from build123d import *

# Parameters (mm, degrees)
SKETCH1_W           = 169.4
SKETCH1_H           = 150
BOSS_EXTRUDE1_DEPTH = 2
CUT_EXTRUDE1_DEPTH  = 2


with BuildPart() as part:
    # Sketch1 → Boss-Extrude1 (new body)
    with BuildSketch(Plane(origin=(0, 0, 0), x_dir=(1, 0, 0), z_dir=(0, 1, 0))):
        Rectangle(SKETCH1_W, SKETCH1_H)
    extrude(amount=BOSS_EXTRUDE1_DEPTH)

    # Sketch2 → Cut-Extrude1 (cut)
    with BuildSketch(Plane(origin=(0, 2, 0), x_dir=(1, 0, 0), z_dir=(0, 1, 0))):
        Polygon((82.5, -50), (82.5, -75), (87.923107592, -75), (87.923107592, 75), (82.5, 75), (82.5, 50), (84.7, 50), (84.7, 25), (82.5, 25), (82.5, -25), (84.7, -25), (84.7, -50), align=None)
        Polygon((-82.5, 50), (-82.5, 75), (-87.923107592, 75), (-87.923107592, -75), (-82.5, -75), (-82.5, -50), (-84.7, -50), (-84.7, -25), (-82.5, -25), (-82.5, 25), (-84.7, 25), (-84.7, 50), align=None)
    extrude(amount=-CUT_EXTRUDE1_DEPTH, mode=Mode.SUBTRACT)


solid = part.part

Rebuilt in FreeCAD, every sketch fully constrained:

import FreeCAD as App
import Part
import Sketcher
from FreeCAD import Vector

doc = App.newDocument("Part")
body = doc.addObject("PartDesign::Body", "Body")

sketch1 = doc.addObject("Sketcher::SketchObject", "Sketch")
body.addObject(sketch1)
sketch1.AttachmentSupport = (doc.XZ_Plane, [""])
sketch1.MapMode = "FlatFace"
sketch1.addGeometry([
    Part.LineSegment(Vector(-84.7, -75, 0), Vector(-84.7, 75, 0)),
    Part.LineSegment(Vector(-84.7, 75, 0), Vector(84.7, 75, 0)),
    Part.LineSegment(Vector(84.7, 75, 0), Vector(84.7, -75, 0)),
    Part.LineSegment(Vector(84.7, -75, 0), Vector(-84.7, -75, 0)),
], False)
sketch1.addConstraint([
    Sketcher.Constraint("Coincident", 0, 2, 1, 1),
    Sketcher.Constraint("Coincident", 1, 2, 2, 1),
    Sketcher.Constraint("Coincident", 2, 2, 3, 1),
    Sketcher.Constraint("Coincident", 3, 2, 0, 1),
    Sketcher.Constraint("Vertical", 0),
    Sketcher.Constraint("Horizontal", 1),
    Sketcher.Constraint("Vertical", 2),
    Sketcher.Constraint("Horizontal", 3),
    Sketcher.Constraint("Symmetric", 0, 2, 2, 2, -1, 1),
    Sketcher.Constraint("DistanceY", 0, 1, 0, 2, 150.0),
    Sketcher.Constraint("DistanceX", 1, 1, 1, 2, 169.4),
])
pad1 = doc.addObject("PartDesign::Pad", "Pad")
body.addObject(pad1)
pad1.Profile = sketch1
pad1.Length = 2
pad1.Reversed = True

sketch2 = doc.addObject("Sketcher::SketchObject", "Sketch001")
body.addObject(sketch2)
sketch2.AttachmentSupport = (doc.XZ_Plane, [""])
sketch2.MapMode = "FlatFace"
sketch2.AttachmentOffset = App.Placement(Vector(0, 0, -2), App.Rotation())
sketch2.addGeometry([
    Part.LineSegment(Vector(82.5, 50, 0), Vector(82.5, 75, 0)),
    Part.LineSegment(Vector(82.5, 75, 0), Vector(87.923108, 75, 0)),
    Part.LineSegment(Vector(87.923108, 75, 0), Vector(87.923108, -75, 0)),
    Part.LineSegment(Vector(87.923108, -75, 0), Vector(82.5, -75, 0)),
    Part.LineSegment(Vector(82.5, -75, 0), Vector(82.5, -50, 0)),
    Part.LineSegment(Vector(82.5, -50, 0), Vector(84.7, -50, 0)),
    Part.LineSegment(Vector(84.7, -50, 0), Vector(84.7, -25, 0)),
    Part.LineSegment(Vector(84.7, -25, 0), Vector(82.5, -25, 0)),
    Part.LineSegment(Vector(82.5, -25, 0), Vector(82.5, 25, 0)),
    Part.LineSegment(Vector(82.5, 25, 0), Vector(84.7, 25, 0)),
    Part.LineSegment(Vector(84.7, 25, 0), Vector(84.7, 50, 0)),
    Part.LineSegment(Vector(84.7, 50, 0), Vector(82.5, 50, 0)),
    Part.LineSegment(Vector(-82.5, -50, 0), Vector(-82.5, -75, 0)),
    Part.LineSegment(Vector(-82.5, -75, 0), Vector(-87.923108, -75, 0)),
    Part.LineSegment(Vector(-87.923108, -75, 0), Vector(-87.923108, 75, 0)),
    Part.LineSegment(Vector(-87.923108, 75, 0), Vector(-82.5, 75, 0)),
    Part.LineSegment(Vector(-82.5, 75, 0), Vector(-82.5, 50, 0)),
    Part.LineSegment(Vector(-82.5, 50, 0), Vector(-84.7, 50, 0)),
    Part.LineSegment(Vector(-84.7, 50, 0), Vector(-84.7, 25, 0)),
    Part.LineSegment(Vector(-84.7, 25, 0), Vector(-82.5, 25, 0)),
    Part.LineSegment(Vector(-82.5, 25, 0), Vector(-82.5, -25, 0)),
    Part.LineSegment(Vector(-82.5, -25, 0), Vector(-84.7, -25, 0)),
    Part.LineSegment(Vector(-84.7, -25, 0), Vector(-84.7, -50, 0)),
    Part.LineSegment(Vector(-84.7, -50, 0), Vector(-82.5, -50, 0)),
], False)
sketch2.addConstraint([
    Sketcher.Constraint("Coincident", 0, 2, 1, 1),
    Sketcher.Constraint("Coincident", 1, 2, 2, 1),
    Sketcher.Constraint("Coincident", 2, 2, 3, 1),
    Sketcher.Constraint("Coincident", 3, 2, 4, 1),
    Sketcher.Constraint("Coincident", 4, 2, 5, 1),
    Sketcher.Constraint("Coincident", 5, 2, 6, 1),
    Sketcher.Constraint("Coincident", 6, 2, 7, 1),
    Sketcher.Constraint("Coincident", 7, 2, 8, 1),
    Sketcher.Constraint("Coincident", 8, 2, 9, 1),
    Sketcher.Constraint("Coincident", 9, 2, 10, 1),
    Sketcher.Constraint("Coincident", 10, 2, 11, 1),
    Sketcher.Constraint("Coincident", 11, 2, 0, 1),
    Sketcher.Constraint("Coincident", 12, 2, 13, 1),
    Sketcher.Constraint("Coincident", 13, 2, 14, 1),
    Sketcher.Constraint("Coincident", 14, 2, 15, 1),
    Sketcher.Constraint("Coincident", 15, 2, 16, 1),
    Sketcher.Constraint("Coincident", 16, 2, 17, 1),
    Sketcher.Constraint("Coincident", 17, 2, 18, 1),
    Sketcher.Constraint("Coincident", 18, 2, 19, 1),
    Sketcher.Constraint("Coincident", 19, 2, 20, 1),
    Sketcher.Constraint("Coincident", 20, 2, 21, 1),
    Sketcher.Constraint("Coincident", 21, 2, 22, 1),
    Sketcher.Constraint("Coincident", 22, 2, 23, 1),
    Sketcher.Constraint("Coincident", 23, 2, 12, 1),
    Sketcher.Constraint("Vertical", 0),
    Sketcher.Constraint("Horizontal", 1),
    Sketcher.Constraint("Vertical", 2),
    Sketcher.Constraint("Horizontal", 3),
    Sketcher.Constraint("Vertical", 4),
    Sketcher.Constraint("Horizontal", 5),
    Sketcher.Constraint("Vertical", 6),
    Sketcher.Constraint("Horizontal", 7),
    Sketcher.Constraint("Vertical", 8),
    Sketcher.Constraint("Horizontal", 9),
    Sketcher.Constraint("Vertical", 10),
    Sketcher.Constraint("Horizontal", 11),
    Sketcher.Constraint("Vertical", 12),
    Sketcher.Constraint("Horizontal", 13),
    Sketcher.Constraint("Vertical", 14),
    Sketcher.Constraint("Horizontal", 15),
    Sketcher.Constraint("Vertical", 16),
    Sketcher.Constraint("Horizontal", 17),
    Sketcher.Constraint("Vertical", 18),
    Sketcher.Constraint("Horizontal", 19),
    Sketcher.Constraint("Vertical", 20),
    Sketcher.Constraint("Horizontal", 21),
    Sketcher.Constraint("Vertical", 22),
    Sketcher.Constraint("Horizontal", 23),
    Sketcher.Constraint("Symmetric", 0, 2, 12, 2, -1, 1),
    Sketcher.Constraint("Symmetric", 2, 2, 14, 2, -1, 1),
    Sketcher.Constraint("Symmetric", 4, 2, 16, 2, -1, 1),
    Sketcher.Constraint("Symmetric", 6, 2, 18, 2, -1, 1),
    Sketcher.Constraint("Symmetric", 8, 2, 20, 2, -1, 1),
    Sketcher.Constraint("Symmetric", 10, 2, 22, 2, -1, 1),
    Sketcher.Constraint("Symmetric", 3, 2, 12, 2, -2),
    Sketcher.Constraint("Symmetric", 10, 2, 17, 2, -2),
    Sketcher.Constraint("Horizontal", 9, 2, 18, 2),
    Sketcher.Constraint("Vertical", 4, 2, 7, 2),
    Sketcher.Constraint("Equal", 4, 6),
    Sketcher.Constraint("DistanceY", 0, 1, 0, 2, 25.0),
    Sketcher.Constraint("DistanceY", 2, 2, 2, 1, 150.0),
    Sketcher.Constraint("DistanceX", 5, 1, 5, 2, 2.2),
    Sketcher.Constraint("DistanceX", 12, 2, 3, 2, 165.0),
    Sketcher.Constraint("DistanceX", 1, 1, 1, 2, 5.423108),
])
pocket1 = doc.addObject("PartDesign::Pocket", "Pocket")
body.addObject(pocket1)
pocket1.Profile = sketch2
pocket1.Length = 2
pocket1.Reversed = True

doc.recompute()
